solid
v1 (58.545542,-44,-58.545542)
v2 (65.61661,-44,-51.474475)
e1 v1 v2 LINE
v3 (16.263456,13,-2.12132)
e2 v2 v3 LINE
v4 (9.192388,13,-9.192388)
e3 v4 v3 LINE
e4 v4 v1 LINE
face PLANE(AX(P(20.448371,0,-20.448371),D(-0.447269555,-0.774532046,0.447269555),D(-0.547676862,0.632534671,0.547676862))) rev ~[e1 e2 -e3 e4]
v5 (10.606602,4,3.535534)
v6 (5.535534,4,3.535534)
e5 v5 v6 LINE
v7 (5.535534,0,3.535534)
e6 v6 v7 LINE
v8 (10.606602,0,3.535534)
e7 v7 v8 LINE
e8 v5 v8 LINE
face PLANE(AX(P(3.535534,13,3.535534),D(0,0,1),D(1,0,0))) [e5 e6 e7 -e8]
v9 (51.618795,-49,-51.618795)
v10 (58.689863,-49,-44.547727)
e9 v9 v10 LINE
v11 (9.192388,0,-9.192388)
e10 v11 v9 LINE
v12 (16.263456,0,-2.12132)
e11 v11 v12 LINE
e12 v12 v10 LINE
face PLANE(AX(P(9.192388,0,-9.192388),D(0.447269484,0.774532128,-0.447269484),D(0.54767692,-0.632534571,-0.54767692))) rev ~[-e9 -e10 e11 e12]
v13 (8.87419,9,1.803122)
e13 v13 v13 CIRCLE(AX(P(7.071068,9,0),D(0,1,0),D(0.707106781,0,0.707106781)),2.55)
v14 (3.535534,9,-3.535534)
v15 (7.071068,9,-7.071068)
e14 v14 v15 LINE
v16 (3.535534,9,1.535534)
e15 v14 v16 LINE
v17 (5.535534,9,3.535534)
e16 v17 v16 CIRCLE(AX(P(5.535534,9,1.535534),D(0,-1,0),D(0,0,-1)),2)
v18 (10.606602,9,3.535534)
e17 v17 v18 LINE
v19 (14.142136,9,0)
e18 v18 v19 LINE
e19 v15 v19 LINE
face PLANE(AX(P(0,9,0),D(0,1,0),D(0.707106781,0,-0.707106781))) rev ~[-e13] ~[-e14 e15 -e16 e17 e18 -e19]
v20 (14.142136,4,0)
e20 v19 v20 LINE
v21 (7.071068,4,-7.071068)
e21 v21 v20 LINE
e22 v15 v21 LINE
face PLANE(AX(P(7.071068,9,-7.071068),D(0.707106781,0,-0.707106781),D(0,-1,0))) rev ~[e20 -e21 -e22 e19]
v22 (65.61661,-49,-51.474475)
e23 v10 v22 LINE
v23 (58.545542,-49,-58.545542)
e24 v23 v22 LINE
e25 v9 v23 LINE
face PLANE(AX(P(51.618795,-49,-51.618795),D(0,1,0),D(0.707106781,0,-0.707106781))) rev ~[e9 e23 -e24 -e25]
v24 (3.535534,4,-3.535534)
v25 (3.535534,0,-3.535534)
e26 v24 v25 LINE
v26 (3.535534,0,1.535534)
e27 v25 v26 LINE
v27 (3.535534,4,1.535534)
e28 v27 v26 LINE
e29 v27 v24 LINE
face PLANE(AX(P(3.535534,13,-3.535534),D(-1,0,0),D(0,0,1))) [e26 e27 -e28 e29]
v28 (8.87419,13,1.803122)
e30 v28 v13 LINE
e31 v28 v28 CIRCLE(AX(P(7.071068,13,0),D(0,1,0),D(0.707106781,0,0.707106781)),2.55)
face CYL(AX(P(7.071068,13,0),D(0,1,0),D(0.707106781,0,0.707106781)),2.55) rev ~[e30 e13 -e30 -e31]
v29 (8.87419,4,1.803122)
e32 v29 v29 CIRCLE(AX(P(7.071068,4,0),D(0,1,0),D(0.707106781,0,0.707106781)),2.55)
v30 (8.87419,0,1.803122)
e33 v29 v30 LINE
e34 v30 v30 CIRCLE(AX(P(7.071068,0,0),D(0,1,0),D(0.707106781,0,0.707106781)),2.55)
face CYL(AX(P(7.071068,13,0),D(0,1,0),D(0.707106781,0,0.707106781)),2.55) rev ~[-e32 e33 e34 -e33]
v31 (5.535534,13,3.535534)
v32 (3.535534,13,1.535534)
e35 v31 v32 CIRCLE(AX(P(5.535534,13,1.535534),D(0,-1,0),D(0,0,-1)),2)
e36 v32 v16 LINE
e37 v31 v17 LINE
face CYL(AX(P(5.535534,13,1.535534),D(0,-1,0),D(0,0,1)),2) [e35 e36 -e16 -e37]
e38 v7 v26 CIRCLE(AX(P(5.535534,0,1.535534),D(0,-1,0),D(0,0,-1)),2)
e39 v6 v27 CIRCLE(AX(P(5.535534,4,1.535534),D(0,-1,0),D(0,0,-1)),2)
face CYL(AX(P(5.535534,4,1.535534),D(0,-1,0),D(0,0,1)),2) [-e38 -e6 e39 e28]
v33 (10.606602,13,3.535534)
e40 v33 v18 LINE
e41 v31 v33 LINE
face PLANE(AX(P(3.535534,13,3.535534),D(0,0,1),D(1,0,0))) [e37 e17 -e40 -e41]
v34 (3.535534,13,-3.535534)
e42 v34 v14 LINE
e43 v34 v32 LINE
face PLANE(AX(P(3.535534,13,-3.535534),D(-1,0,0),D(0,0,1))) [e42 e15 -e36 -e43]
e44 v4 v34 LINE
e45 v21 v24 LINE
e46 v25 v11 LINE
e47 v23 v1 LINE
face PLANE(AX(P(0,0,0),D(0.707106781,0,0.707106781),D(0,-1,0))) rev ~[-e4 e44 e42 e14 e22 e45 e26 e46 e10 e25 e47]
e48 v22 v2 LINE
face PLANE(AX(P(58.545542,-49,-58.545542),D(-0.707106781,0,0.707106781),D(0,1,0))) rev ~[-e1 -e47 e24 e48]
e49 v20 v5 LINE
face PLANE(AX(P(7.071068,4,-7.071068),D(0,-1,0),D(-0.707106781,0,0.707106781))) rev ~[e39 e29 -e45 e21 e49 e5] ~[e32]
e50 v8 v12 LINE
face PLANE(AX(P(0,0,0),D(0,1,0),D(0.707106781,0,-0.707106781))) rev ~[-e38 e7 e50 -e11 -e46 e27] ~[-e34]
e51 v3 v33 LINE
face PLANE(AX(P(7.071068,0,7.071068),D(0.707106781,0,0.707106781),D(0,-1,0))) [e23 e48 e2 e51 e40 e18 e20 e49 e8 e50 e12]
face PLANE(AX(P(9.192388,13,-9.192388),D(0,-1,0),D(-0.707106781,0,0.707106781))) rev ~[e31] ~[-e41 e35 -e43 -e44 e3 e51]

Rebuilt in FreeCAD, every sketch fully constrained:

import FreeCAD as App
import Part
import Sketcher

V = App.Vector


def edges_at(feature, points):
    """Names of the edges that pass closest to the given points."""
    edges = feature.Shape.Edges
    near = lambda p: min(range(len(edges)), key=lambda i: edges[i].distToShape(Part.Vertex(*p))[0])
    return sorted({f"Edge{near(p) + 1}" for p in points})

doc = App.newDocument("Part")
body = doc.addObject("PartDesign::Body", "Body")

sketch1 = body.newObject("Sketcher::SketchObject", "Sketch")
sketch1.Placement = App.Placement(V(0, 0, 0), App.Rotation(V(0, -1, 0), V(0.707106781, 0, -0.707106781), V(0.707106781, 0, 0.707106781), "ZXY"))
sketch1.addGeometry(Part.LineSegment(V(-13, 0, 0), V(-9, 0, 0)), False)
sketch1.addGeometry(Part.LineSegment(V(-9, 0, 0), V(-9, 10, 0)), False)
sketch1.addGeometry(Part.LineSegment(V(-9, 10, 0), V(-4, 10, 0)), False)
sketch1.addGeometry(Part.LineSegment(V(-4, 10, 0), V(-4, 0, 0)), False)
sketch1.addGeometry(Part.LineSegment(V(-4, 0, 0), V(0, 0, 0)), False)
sketch1.addGeometry(Part.LineSegment(V(0, 0, 0), V(0, 13, 0)), False)
sketch1.addGeometry(Part.LineSegment(V(0, 13, 0), V(49, 73, 0)), False)
sketch1.addGeometry(Part.LineSegment(V(49, 73, 0), V(49, 82.8, 0)), False)
sketch1.addGeometry(Part.LineSegment(V(49, 82.8, 0), V(44, 82.8, 0)), False)
sketch1.addGeometry(Part.LineSegment(V(44, 82.8, 0), V(-13, 13, 0)), False)
sketch1.addGeometry(Part.LineSegment(V(-13, 13, 0), V(-13, 0, 0)), False)
sketch1.addConstraint(Sketcher.Constraint("Coincident", 0, 2, 1, 1))
sketch1.addConstraint(Sketcher.Constraint("Coincident", 1, 2, 2, 1))
sketch1.addConstraint(Sketcher.Constraint("Coincident", 2, 2, 3, 1))
sketch1.addConstraint(Sketcher.Constraint("Coincident", 3, 2, 4, 1))
sketch1.addConstraint(Sketcher.Constraint("Coincident", 4, 2, 5, 1))
sketch1.addConstraint(Sketcher.Constraint("Coincident", 5, 2, 6, 1))
sketch1.addConstraint(Sketcher.Constraint("Coincident", 6, 2, 7, 1))
sketch1.addConstraint(Sketcher.Constraint("Coincident", 7, 2, 8, 1))
sketch1.addConstraint(Sketcher.Constraint("Coincident", 8, 2, 9, 1))
sketch1.addConstraint(Sketcher.Constraint("Coincident", 9, 2, 10, 1))
sketch1.addConstraint(Sketcher.Constraint("Coincident", 10, 2, 0, 1))
sketch1.addConstraint(Sketcher.Constraint("Horizontal", 0))
sketch1.addConstraint(Sketcher.Constraint("Vertical", 1))
sketch1.addConstraint(Sketcher.Constraint("Horizontal", 2))
sketch1.addConstraint(Sketcher.Constraint("Vertical", 3))
sketch1.addConstraint(Sketcher.Constraint("Horizontal", 4))
sketch1.addConstraint(Sketcher.Constraint("Vertical", 5))
sketch1.addConstraint(Sketcher.Constraint("Vertical", 7))
sketch1.addConstraint(Sketcher.Constraint("Horizontal", 8))
sketch1.addConstraint(Sketcher.Constraint("Vertical", 10))
sketch1.addConstraint(Sketcher.Constraint("Coincident", 4, 2, -1, 1))
sketch1.addConstraint(Sketcher.Constraint("PointOnObject", 0, 2, -1))
sketch1.addConstraint(Sketcher.Constraint("Parallel", 6, 9))
sketch1.addConstraint(Sketcher.Constraint("Horizontal", 5, 2, 9, 2))
sketch1.addConstraint(Sketcher.Constraint("Equal", 0, 4))
sketch1.addConstraint(Sketcher.Constraint("Equal", 2, 8))
sketch1.addConstraint(Sketcher.Constraint("DistanceX", 0, 1, 0, 2, 4.0))
sketch1.addConstraint(Sketcher.Constraint("DistanceX", 2, 1, 2, 2, 5.0))
sketch1.addConstraint(Sketcher.Constraint("DistanceY", 1, 1, 1, 2, 10.0))
sketch1.addConstraint(Sketcher.Constraint("DistanceY", 2, 2, 5, 2, 3.0))
sketch1.addConstraint(Sketcher.Constraint("DistanceY", 5, 2, 6, 2, 60.0))
sketch1.addConstraint(Sketcher.Constraint("DistanceX", 2, 2, 6, 2, 53.0))
pad1 = body.newObject("PartDesign::Pad", "Pad")
pad1.Profile = sketch1
pad1.Length = 10

sketch2 = body.newObject("Sketcher::SketchObject", "Sketch001")
sketch2.AttachmentSupport = (doc.getObject("XZ_Plane"), [""])
sketch2.MapMode = "FlatFace"
sketch2.AttachmentOffset = App.Placement(V(0, 0, -13), App.Rotation())
sketch2.addGeometry(Part.Circle(V(7.1, 0, 0), V(0, 0, 1), 2.5), False)
sketch2.addGeometry(Part.LineSegment(V(10.6, 3.5, 0), V(3.5, 3.5, 0)), False)
sketch2.addGeometry(Part.LineSegment(V(3.5, 3.5, 0), V(7.1, 7.1, 0)), False)
sketch2.addGeometry(Part.LineSegment(V(7.1, 7.1, 0), V(10.6, 3.5, 0)), False)
sketch2.addGeometry(Part.LineSegment(V(3.5, -3.5, 0), V(0, 0, 0)), False)
sketch2.addGeometry(Part.LineSegment(V(0, 0, 0), V(3.5, 3.5, 0)), False)
sketch2.addGeometry(Part.LineSegment(V(3.5, 3.5, 0), V(3.5, -3.5, 0)), False)
sketch2.addConstraint(Sketcher.Constraint("Coincident", 1, 2, 2, 1))
sketch2.addConstraint(Sketcher.Constraint("Coincident", 2, 2, 3, 1))
sketch2.addConstraint(Sketcher.Constraint("Coincident", 3, 2, 1, 1))
sketch2.addConstraint(Sketcher.Constraint("Coincident", 4, 2, 5, 1))
sketch2.addConstraint(Sketcher.Constraint("Coincident", 5, 2, 6, 1))
sketch2.addConstraint(Sketcher.Constraint("Coincident", 6, 2, 4, 1))
sketch2.addConstraint(Sketcher.Constraint("Horizontal", 1))
sketch2.addConstraint(Sketcher.Constraint("Vertical", 6))
sketch2.addConstraint(Sketcher.Constraint("Coincident", 4, 2, -1, 1))
sketch2.addConstraint(Sketcher.Constraint("Coincident", 5, 2, 1, 2))
sketch2.addConstraint(Sketcher.Constraint("PointOnObject", 0, 3, -1))
sketch2.addConstraint(Sketcher.Constraint("Perpendicular", 2, 3))
sketch2.addConstraint(Sketcher.Constraint("Parallel", 3, 4))
sketch2.addConstraint(Sketcher.Constraint("Perpendicular", 4, 5))
sketch2.addConstraint(Sketcher.Constraint("Vertical", 0, 3, 2, 2))
sketch2.addConstraint(Sketcher.Constraint("Equal", 1, 6))
sketch2.addConstraint(Sketcher.Constraint("Equal", 2, 3))
sketch2.addConstraint(Sketcher.Constraint("Diameter", 0, 5.1))
sketch2.addConstraint(Sketcher.Constraint("Distance", 2, 5.0))
pocket1 = body.newObject("PartDesign::Pocket", "Pocket")
pocket1.Profile = sketch2
pocket1.Type = "ThroughAll"
pocket1.Reversed = True
doc.recompute()

fillet = body.newObject("PartDesign::Fillet", "Fillet")
fillet.Base = (pocket1, edges_at(pocket1, [(3.535, 2, 3.535), (3.535, 11, 3.535)]))
fillet.Radius = 2

doc.recompute()
